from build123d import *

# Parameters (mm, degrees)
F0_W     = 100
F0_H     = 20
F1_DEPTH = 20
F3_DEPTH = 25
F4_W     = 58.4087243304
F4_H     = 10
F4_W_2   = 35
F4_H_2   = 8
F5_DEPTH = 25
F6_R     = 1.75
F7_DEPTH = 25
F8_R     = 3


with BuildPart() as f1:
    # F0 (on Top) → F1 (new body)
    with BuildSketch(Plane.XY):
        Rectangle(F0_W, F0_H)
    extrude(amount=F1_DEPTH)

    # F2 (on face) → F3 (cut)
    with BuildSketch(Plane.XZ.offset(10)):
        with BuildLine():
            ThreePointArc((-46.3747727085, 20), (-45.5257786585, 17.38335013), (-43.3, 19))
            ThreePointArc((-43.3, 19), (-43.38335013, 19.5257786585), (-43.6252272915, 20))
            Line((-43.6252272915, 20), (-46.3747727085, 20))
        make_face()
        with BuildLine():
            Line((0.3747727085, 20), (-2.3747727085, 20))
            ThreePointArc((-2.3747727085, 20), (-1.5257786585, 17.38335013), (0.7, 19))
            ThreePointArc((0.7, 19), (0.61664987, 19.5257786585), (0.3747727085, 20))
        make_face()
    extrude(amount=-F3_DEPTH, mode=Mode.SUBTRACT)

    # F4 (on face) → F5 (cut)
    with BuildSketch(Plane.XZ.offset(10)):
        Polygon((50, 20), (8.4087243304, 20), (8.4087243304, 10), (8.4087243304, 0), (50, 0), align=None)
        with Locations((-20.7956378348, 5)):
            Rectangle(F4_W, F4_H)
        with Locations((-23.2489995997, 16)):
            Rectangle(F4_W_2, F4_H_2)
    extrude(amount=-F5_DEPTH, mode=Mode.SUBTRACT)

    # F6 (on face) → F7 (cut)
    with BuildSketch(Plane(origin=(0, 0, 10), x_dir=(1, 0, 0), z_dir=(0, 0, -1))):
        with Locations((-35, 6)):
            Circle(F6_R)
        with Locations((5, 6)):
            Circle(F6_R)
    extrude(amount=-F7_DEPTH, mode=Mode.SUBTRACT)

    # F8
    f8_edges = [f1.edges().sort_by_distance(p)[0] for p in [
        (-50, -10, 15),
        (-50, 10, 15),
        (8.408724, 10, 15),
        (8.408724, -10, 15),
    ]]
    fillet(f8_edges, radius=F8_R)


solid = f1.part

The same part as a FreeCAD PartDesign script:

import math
import FreeCAD as App
import Part
import Sketcher
from FreeCAD import Vector


def edges_at(feature, points):
    """Names of the edges that pass closest to the given points."""
    edges = feature.Shape.Edges
    near = lambda p: min(range(len(edges)), key=lambda i: edges[i].distToShape(Part.Vertex(*p))[0])
    return sorted({f"Edge{near(p) + 1}" for p in points})


def add_polygon(sketch, points):
    """Adds a closed chain of lines whose ends are joined by coincident constraints."""
    first, n = sketch.GeometryCount, len(points)
    for a, b in zip(points, points[1:] + points[:1]):
        sketch.addGeometry(Part.LineSegment(App.Vector(*a, 0), App.Vector(*b, 0)), False)
    for i in range(n):
        sketch.addConstraint(Sketcher.Constraint("Coincident", first + i, 2, first + (i + 1) % n, 1))

doc = App.newDocument("Part")
body = doc.addObject("PartDesign::Body", "Body")

sketch1 = doc.addObject("Sketcher::SketchObject", "Sketch")
body.addObject(sketch1)
sketch1.AttachmentSupport = (doc.XY_Plane, [""])
sketch1.MapMode = "FlatFace"
add_polygon(sketch1, [(-50, 10), (-50, -10), (50, -10), (50, 10)])
sketch1.addConstraint([
    Sketcher.Constraint("Vertical", 0),
    Sketcher.Constraint("Horizontal", 1),
    Sketcher.Constraint("Vertical", 2),
    Sketcher.Constraint("Horizontal", 3),
    Sketcher.Constraint("Symmetric", 0, 2, 2, 2, -1, 1),
    Sketcher.Constraint("DistanceX", 1, 1, 1, 2, 100.0),
    Sketcher.Constraint("DistanceY", 0, 2, 0, 1, 20.0),
])
pad1 = doc.addObject("PartDesign::Pad", "Pad")
body.addObject(pad1)
pad1.Profile = sketch1
pad1.Length = 20

sketch2 = doc.addObject("Sketcher::SketchObject", "Sketch001")
body.addObject(sketch2)
sketch2.AttachmentSupport = (doc.XZ_Plane, [""])
sketch2.MapMode = "FlatFace"
sketch2.AttachmentOffset = App.Placement(Vector(0, 0, 10), App.Rotation())
sketch2.addGeometry([
    Part.ArcOfCircle(Part.Circle(Vector(-45, 19, 0), Vector(0, 0, 1), 1.7), math.radians(144), math.radians(360)),
    Part.ArcOfCircle(Part.Circle(Vector(-45, 19, 0), Vector(0, 0, 1), 1.7), math.radians(0), math.radians(36)),
    Part.LineSegment(Vector(-43.6, 20, 0), Vector(-46.4, 20, 0)),
    Part.LineSegment(Vector(0.4, 20, 0), Vector(-2.4, 20, 0)),
    Part.ArcOfCircle(Part.Circle(Vector(-1, 19, 0), Vector(0, 0, 1), 1.7), math.radians(144), math.radians(360)),
    Part.ArcOfCircle(Part.Circle(Vector(-1, 19, 0), Vector(0, 0, 1), 1.7), math.radians(0), math.radians(36)),
], False)
sketch2.addConstraint([
    Sketcher.Constraint("Tangent", 0, 2, 1, 1),
    Sketcher.Constraint("Coincident", 1, 2, 2, 1),
    Sketcher.Constraint("Coincident", 2, 2, 0, 1),
    Sketcher.Constraint("Coincident", 3, 2, 4, 1),
    Sketcher.Constraint("Tangent", 4, 2, 5, 1),
    Sketcher.Constraint("Coincident", 5, 2, 3, 1),
    Sketcher.Constraint("Horizontal", 2),
    Sketcher.Constraint("Horizontal", 3),
    Sketcher.Constraint("Equal", 0, 1),
    Sketcher.Constraint("Equal", 1, 4),
    Sketcher.Constraint("Equal", 4, 5),
    Sketcher.Constraint("Horizontal", 1, 3, 4, 3),
    Sketcher.Constraint("Horizontal", 5, 3, 0, 2),
    Sketcher.Constraint("Horizontal", 2, 2, 3, 2),
    Sketcher.Constraint("Horizontal", 0, 2, 4, 2),
    Sketcher.Constraint("Radius", 0, 1.7),
    Sketcher.Constraint("DistanceX", 0, 3, -1, 1, 45.0),
    Sketcher.Constraint("DistanceY", -1, 1, 0, 3, 19.0),
    Sketcher.Constraint("DistanceX", 4, 3, -1, 1, 1.0),
    Sketcher.Constraint("DistanceY", -1, 1, 1, 2, 20.0),
])
pocket1 = doc.addObject("PartDesign::Pocket", "Pocket")
body.addObject(pocket1)
pocket1.Profile = sketch2
pocket1.Length = 25

sketch3 = doc.addObject("Sketcher::SketchObject", "Sketch002")
body.addObject(sketch3)
sketch3.AttachmentSupport = (doc.XZ_Plane, [""])
sketch3.MapMode = "FlatFace"
sketch3.AttachmentOffset = App.Placement(Vector(0, 0, 10), App.Rotation())
add_polygon(sketch3, [(50, 20), (8, 20), (8, 10), (-50, 10), (-50, 0), (50, 0)])
add_polygon(sketch3, [(-41, 20), (-41, 12), (-6, 12), (-6, 20)])
sketch3.addConstraint([
    Sketcher.Constraint("Horizontal", 0),
    Sketcher.Constraint("Vertical", 1),
    Sketcher.Constraint("Horizontal", 2),
    Sketcher.Constraint("Vertical", 3),
    Sketcher.Constraint("Horizontal", 4),
    Sketcher.Constraint("Vertical", 5),
    Sketcher.Constraint("Vertical", 6),
    Sketcher.Constraint("Horizontal", 7),
    Sketcher.Constraint("Vertical", 8),
    Sketcher.Constraint("Horizontal", 9),
    Sketcher.Constraint("Symmetric", 3, 2, 4, 2, -1, 1),
    Sketcher.Constraint("Horizontal", 5, 2, 8, 2),
    Sketcher.Constraint("Equal", 1, 3),
    Sketcher.Constraint("DistanceX", 4, 1, 4, 2, 100.0),
    Sketcher.Constraint("DistanceX", 7, 1, 7, 2, 35.0),
    Sketcher.Constraint("DistanceY", 1, 2, 1, 1, 10.0),
    Sketcher.Constraint("DistanceY", 6, 2, 6, 1, 8.0),
    Sketcher.Constraint("DistanceX", 6, 2, -1, 1, 40.749),
    Sketcher.Constraint("DistanceX", 0, 2, 0, 1, 41.591276),
])
pocket2 = doc.addObject("PartDesign::Pocket", "Pocket001")
body.addObject(pocket2)
pocket2.Profile = sketch3
pocket2.Length = 25

sketch4 = doc.addObject("Sketcher::SketchObject", "Sketch003")
body.addObject(sketch4)
sketch4.AttachmentSupport = (doc.XY_Plane, [""])
sketch4.MapMode = "FlatFace"
sketch4.AttachmentOffset = App.Placement(Vector(0, 0, 10), App.Rotation())
sketch4.addGeometry([
    Part.Circle(Vector(-35, -6, 0), Vector(0, 0, 1), 1.8),
    Part.Circle(Vector(5, -6, 0), Vector(0, 0, 1), 1.8),
], False)
sketch4.addConstraint([
    Sketcher.Constraint("Equal", 0, 1),
    Sketcher.Constraint("Horizontal", 0, 3, 1, 3),
    Sketcher.Constraint("Diameter", 0, 3.5),
    Sketcher.Constraint("DistanceX", 0, 3, -1, 1, 35.0),
    Sketcher.Constraint("DistanceY", 0, 3, -1, 1, 6.0),
    Sketcher.Constraint("DistanceX", -1, 1, 1, 3, 5.0),
])
pocket3 = doc.addObject("PartDesign::Pocket", "Pocket002")
body.addObject(pocket3)
pocket3.Profile = sketch4
pocket3.Length = 25
pocket3.Reversed = True
doc.recompute()

fillet = doc.addObject("PartDesign::Fillet", "Fillet")
body.addObject(fillet)
fillet.Base = (pocket3, edges_at(pocket3, [
    (-50, -10, 15),
    (-50, 10, 15),
    (8.409, 10, 15),
    (8.409, -10, 15),
]))
fillet.Radius = 3

doc.recompute()
